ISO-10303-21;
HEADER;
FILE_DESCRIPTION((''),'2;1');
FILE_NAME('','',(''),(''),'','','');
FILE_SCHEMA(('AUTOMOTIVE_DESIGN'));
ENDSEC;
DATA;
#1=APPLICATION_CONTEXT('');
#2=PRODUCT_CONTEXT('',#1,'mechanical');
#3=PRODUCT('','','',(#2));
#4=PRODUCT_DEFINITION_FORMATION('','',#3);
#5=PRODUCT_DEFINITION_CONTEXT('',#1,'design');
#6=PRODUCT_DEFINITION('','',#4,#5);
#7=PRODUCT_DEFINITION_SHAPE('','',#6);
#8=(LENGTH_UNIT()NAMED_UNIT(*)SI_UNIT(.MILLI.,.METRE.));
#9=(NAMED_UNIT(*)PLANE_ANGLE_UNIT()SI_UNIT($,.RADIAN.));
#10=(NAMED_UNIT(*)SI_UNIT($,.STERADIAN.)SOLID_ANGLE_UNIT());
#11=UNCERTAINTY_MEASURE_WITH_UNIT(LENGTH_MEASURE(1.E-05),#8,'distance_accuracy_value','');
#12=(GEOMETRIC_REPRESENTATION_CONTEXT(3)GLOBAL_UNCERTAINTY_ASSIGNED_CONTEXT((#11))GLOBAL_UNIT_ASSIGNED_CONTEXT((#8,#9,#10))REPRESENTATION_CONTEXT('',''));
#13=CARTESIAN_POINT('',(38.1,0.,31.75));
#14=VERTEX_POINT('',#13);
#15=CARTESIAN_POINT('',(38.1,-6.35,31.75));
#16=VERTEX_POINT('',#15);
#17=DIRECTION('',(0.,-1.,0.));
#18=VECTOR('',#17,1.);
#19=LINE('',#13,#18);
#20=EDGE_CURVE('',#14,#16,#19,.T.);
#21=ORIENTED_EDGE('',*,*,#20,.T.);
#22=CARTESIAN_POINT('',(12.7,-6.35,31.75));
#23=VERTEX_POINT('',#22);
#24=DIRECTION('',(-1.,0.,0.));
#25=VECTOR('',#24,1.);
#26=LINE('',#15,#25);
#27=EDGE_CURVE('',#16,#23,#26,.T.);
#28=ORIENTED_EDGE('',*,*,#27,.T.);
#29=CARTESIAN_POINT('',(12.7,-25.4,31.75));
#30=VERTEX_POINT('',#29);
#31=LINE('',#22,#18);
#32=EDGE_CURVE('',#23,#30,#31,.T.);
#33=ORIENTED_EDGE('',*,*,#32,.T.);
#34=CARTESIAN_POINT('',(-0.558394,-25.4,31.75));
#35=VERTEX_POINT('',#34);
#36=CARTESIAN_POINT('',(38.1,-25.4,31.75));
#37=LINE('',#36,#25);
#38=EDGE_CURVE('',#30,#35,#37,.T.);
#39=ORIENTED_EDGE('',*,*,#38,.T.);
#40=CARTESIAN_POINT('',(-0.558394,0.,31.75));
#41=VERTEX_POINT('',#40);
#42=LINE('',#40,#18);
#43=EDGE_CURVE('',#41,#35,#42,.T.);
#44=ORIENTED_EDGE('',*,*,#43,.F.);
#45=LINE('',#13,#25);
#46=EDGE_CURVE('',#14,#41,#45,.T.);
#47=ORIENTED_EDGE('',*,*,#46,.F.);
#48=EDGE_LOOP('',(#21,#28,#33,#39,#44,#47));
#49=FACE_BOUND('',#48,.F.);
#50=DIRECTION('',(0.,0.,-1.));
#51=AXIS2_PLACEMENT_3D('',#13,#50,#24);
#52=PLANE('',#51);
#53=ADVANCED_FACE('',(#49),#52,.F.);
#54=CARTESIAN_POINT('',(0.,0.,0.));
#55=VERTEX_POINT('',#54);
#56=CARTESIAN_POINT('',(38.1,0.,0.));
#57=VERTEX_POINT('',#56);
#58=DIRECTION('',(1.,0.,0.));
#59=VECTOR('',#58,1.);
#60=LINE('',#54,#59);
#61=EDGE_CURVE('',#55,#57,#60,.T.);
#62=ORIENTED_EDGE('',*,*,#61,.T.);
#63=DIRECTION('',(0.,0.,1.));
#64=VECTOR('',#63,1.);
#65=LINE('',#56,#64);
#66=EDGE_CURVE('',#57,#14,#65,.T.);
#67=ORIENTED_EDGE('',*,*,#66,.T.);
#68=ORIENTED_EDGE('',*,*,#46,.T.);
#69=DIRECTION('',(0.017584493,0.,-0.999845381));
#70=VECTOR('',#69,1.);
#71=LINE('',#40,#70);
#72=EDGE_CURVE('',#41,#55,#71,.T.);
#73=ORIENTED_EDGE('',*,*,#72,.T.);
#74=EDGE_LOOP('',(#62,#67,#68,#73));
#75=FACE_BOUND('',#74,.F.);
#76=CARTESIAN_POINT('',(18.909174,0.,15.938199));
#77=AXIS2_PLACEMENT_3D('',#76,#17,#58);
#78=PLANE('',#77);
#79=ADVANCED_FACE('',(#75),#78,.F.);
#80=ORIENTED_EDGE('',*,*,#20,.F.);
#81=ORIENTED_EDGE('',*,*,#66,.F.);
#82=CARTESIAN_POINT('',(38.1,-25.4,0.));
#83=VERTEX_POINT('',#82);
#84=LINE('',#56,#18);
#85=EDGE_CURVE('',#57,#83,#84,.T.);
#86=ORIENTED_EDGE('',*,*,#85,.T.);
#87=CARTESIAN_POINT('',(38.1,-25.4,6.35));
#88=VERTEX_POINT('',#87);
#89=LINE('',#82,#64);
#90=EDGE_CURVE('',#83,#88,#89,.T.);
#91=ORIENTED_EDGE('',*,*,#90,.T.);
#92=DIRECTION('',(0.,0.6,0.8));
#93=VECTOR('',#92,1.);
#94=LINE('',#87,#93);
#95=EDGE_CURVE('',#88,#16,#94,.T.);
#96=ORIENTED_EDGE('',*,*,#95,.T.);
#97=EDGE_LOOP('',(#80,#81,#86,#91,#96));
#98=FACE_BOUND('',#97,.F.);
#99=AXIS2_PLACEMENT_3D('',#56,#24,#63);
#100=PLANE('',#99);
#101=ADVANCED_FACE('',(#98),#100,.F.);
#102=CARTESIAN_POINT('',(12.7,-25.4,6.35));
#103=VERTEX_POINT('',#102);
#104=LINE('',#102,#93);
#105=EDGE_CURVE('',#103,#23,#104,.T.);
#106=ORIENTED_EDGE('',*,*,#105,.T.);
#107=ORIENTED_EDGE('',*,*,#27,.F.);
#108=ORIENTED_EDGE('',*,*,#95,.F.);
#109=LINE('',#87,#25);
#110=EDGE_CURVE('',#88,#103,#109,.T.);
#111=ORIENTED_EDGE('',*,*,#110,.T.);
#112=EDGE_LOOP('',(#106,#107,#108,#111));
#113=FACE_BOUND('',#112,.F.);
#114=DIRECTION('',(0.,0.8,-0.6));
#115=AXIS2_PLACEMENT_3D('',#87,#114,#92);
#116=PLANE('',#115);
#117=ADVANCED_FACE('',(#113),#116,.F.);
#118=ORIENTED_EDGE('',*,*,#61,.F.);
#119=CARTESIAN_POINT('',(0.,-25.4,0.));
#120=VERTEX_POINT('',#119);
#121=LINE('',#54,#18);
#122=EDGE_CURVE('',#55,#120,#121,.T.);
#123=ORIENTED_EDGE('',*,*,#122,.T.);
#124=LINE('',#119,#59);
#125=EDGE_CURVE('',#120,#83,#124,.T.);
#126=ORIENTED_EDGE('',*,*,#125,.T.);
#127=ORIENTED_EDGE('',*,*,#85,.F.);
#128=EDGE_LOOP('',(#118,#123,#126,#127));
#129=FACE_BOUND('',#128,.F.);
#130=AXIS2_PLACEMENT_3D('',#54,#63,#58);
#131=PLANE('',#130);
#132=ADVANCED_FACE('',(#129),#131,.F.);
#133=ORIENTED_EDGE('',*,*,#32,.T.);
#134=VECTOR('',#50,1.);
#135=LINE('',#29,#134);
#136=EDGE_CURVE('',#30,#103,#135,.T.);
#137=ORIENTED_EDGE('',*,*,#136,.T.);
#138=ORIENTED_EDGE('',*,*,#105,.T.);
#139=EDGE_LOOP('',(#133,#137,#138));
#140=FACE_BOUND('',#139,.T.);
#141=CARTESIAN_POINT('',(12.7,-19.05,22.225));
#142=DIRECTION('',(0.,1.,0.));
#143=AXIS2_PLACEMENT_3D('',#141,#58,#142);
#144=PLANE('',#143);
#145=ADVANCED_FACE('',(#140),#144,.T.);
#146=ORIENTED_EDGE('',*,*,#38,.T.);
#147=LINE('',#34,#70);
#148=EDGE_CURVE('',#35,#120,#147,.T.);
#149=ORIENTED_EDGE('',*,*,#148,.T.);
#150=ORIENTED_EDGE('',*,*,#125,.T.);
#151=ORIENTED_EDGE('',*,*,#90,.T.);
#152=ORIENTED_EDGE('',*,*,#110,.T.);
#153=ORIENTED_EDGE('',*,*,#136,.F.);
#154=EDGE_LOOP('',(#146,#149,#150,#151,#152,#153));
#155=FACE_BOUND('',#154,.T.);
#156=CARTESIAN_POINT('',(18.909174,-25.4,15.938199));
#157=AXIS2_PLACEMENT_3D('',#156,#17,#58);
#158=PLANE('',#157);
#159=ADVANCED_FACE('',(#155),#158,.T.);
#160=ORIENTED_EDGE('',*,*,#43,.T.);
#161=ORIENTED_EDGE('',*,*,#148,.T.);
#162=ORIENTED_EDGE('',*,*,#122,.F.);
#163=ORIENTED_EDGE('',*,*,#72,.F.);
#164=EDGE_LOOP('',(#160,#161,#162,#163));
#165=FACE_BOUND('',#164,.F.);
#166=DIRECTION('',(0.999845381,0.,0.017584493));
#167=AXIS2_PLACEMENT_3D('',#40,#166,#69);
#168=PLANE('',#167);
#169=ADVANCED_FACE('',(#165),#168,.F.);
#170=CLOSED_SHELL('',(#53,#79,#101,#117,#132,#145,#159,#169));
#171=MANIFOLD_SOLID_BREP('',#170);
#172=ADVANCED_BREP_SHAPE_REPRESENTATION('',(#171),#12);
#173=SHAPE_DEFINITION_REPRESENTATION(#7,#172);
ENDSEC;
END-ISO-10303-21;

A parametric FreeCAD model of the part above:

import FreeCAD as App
import Part
import Sketcher

V = App.Vector
Q = App.Units.Quantity

doc = App.newDocument("Part")
body = doc.addObject("PartDesign::Body", "Body")

# Sketch on XZ plane
sketch1 = body.newObject("Sketcher::SketchObject", "Sketch")
sketch1.AttachmentSupport = (doc.getObject("XZ_Plane"), [""])
sketch1.MapMode = "FlatFace"
sketch1.addGeometry(Part.LineSegment(V(-1, 32, 0), V(0, 0, 0)), False)
sketch1.addGeometry(Part.LineSegment(V(0, 0, 0), V(38, 0, 0)), False)
sketch1.addGeometry(Part.LineSegment(V(38, 0, 0), V(38, 32, 0)), False)
sketch1.addGeometry(Part.LineSegment(V(38, 32, 0), V(-1, 32, 0)), False)
sketch1.addConstraint(Sketcher.Constraint("Coincident", 0, 2, 1, 1))
sketch1.addConstraint(Sketcher.Constraint("Coincident", 1, 2, 2, 1))
sketch1.addConstraint(Sketcher.Constraint("Coincident", 2, 2, 3, 1))
sketch1.addConstraint(Sketcher.Constraint("Coincident", 3, 2, 0, 1))
sketch1.addConstraint(Sketcher.Constraint("Horizontal", 1))
sketch1.addConstraint(Sketcher.Constraint("Vertical", 2))
sketch1.addConstraint(Sketcher.Constraint("Horizontal", 3))
sketch1.addConstraint(Sketcher.Constraint("Coincident", 0, 2, -1, 1))
sketch1.addConstraint(Sketcher.Constraint("DistanceX", 1, 1, 1, 2, Q("1.5 in")))
sketch1.addConstraint(Sketcher.Constraint("DistanceY", 2, 1, 2, 2, Q("1.25 in")))
sketch1.addConstraint(Sketcher.Constraint("Distance", 0, 31.75491))
pad1 = body.newObject("PartDesign::Pad", "Pad")
pad1.Profile = sketch1
pad1.Length = Q("1 in")

# Sketch on YZ plane
sketch2 = body.newObject("Sketcher::SketchObject", "Sketch001")
sketch2.AttachmentSupport = (doc.getObject("YZ_Plane"), [""])
sketch2.MapMode = "FlatFace"
sketch2.AttachmentOffset = App.Placement(V(0, 0, 1.5 * 25.4), App.Rotation())
sketch2.addGeometry(Part.LineSegment(V(-25, 6, 0), V(-6, 32, 0)), False)
sketch2.addGeometry(Part.LineSegment(V(-6, 32, 0), V(-25, 32, 0)), False)
sketch2.addGeometry(Part.LineSegment(V(-25, 32, 0), V(-25, 6, 0)), False)
sketch2.addConstraint(Sketcher.Constraint("Coincident", 0, 2, 1, 1))
sketch2.addConstraint(Sketcher.Constraint("Coincident", 1, 2, 2, 1))
sketch2.addConstraint(Sketcher.Constraint("Coincident", 2, 2, 0, 1))
sketch2.addConstraint(Sketcher.Constraint("Horizontal", 1))
sketch2.addConstraint(Sketcher.Constraint("Vertical", 2))
sketch2.addConstraint(Sketcher.Constraint("DistanceY", 2, 2, 2, 1, Q("1 in")))
sketch2.addConstraint(Sketcher.Constraint("DistanceX", 1, 2, -1, 1, Q("1 in")))
sketch2.addConstraint(Sketcher.Constraint("DistanceX", 1, 2, 1, 1, Q("0.75 in")))
sketch2.addConstraint(Sketcher.Constraint("DistanceY", -1, 1, 0, 2, Q("1.25 in")))
pocket1 = body.newObject("PartDesign::Pocket", "Pocket")
pocket1.Profile = sketch2
pocket1.Length = Q("1 in")

doc.recompute()
